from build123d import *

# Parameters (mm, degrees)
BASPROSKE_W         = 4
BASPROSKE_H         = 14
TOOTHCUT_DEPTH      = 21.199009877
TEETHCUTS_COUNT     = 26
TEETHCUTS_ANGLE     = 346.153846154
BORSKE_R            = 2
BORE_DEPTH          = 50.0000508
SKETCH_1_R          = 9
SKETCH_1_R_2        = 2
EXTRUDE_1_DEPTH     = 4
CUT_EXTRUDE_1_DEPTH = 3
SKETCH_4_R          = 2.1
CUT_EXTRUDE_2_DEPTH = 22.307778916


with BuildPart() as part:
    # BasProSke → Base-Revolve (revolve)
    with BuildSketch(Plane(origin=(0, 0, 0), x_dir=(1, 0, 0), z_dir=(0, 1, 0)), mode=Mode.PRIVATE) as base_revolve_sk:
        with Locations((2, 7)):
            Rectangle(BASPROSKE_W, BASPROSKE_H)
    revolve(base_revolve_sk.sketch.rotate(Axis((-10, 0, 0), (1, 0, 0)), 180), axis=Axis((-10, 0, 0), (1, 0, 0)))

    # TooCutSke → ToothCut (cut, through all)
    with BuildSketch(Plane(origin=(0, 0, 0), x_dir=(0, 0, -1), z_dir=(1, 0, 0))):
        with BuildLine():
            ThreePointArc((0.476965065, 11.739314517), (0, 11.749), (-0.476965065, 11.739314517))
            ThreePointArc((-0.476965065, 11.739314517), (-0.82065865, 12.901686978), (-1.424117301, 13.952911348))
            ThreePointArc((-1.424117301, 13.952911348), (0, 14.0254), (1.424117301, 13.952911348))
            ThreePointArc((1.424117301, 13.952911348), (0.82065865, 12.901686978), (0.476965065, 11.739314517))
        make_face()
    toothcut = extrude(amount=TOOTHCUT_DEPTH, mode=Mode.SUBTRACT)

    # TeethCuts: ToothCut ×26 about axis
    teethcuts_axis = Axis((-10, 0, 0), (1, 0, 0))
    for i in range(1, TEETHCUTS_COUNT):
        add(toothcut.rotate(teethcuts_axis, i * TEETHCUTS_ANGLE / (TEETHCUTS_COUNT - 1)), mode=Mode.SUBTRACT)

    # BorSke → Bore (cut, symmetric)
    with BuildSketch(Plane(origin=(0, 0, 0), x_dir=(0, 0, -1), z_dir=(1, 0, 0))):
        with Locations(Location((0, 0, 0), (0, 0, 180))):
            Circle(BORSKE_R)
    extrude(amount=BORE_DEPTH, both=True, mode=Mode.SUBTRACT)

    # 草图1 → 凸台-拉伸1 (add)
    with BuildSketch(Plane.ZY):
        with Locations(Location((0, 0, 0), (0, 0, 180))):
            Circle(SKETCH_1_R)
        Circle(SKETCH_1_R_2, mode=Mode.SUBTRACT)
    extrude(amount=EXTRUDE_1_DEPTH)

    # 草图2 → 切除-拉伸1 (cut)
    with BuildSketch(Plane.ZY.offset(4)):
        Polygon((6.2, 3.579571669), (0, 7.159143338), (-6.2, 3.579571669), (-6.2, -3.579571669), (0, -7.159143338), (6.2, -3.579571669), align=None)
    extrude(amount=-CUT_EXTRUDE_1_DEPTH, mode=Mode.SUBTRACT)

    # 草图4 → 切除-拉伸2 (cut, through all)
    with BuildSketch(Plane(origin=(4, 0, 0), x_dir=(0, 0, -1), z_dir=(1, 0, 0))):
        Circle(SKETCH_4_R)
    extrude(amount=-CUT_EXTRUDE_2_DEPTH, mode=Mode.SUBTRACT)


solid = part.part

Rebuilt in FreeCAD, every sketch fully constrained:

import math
import FreeCAD as App
import Part
import Sketcher

V = App.Vector
Q = App.Units.Quantity


def add_polygon(sketch, points):
    """Adds a closed chain of lines whose ends are joined by coincident constraints."""
    first, n = sketch.GeometryCount, len(points)
    for a, b in zip(points, points[1:] + points[:1]):
        sketch.addGeometry(Part.LineSegment(App.Vector(*a, 0), App.Vector(*b, 0)), False)
    for i in range(n):
        sketch.addConstraint(Sketcher.Constraint("Coincident", first + i, 2, first + (i + 1) % n, 1))

doc = App.newDocument("Part")
body = doc.addObject("PartDesign::Body", "Body")

# Sketch on XZ plane
sketch1 = doc.addObject("Sketcher::SketchObject", "Sketch")
body.addObject(sketch1)
sketch1.AttachmentSupport = (doc.XZ_Plane, [""])
sketch1.MapMode = "FlatFace"
add_polygon(sketch1, [(0, -14), (0, 0), (4, 0), (4, -14)])  # lines 0-3
sketch1.addConstraint(Sketcher.Constraint("Vertical", 0))
sketch1.addConstraint(Sketcher.Constraint("Horizontal", 1))
sketch1.addConstraint(Sketcher.Constraint("Vertical", 2))
sketch1.addConstraint(Sketcher.Constraint("Horizontal", 3))
sketch1.addConstraint(Sketcher.Constraint("Coincident", 0, 2, -1, 1))
sketch1.addConstraint(Sketcher.Constraint("DistanceX", 1, 1, 1, 2, Q("4 mm")))
sketch1.addConstraint(Sketcher.Constraint("DistanceY", 0, 1, 0, 2, Q("14 mm")))
revolution = doc.addObject("PartDesign::Revolution", "Revolution")
body.addObject(revolution)
revolution.Profile = sketch1
revolution.ReferenceAxis = (sketch1, ["H_Axis"])
revolution.Angle = 360

# Sketch on YZ plane
sketch2 = doc.addObject("Sketcher::SketchObject", "Sketch001")
body.addObject(sketch2)
sketch2.AttachmentSupport = (doc.YZ_Plane, [""])
sketch2.MapMode = "FlatFace"
sketch2.addGeometry(Part.ArcOfCircle(Part.Circle(V(0, 0, 0), V(0, 0, 1), 11.7), math.radians(-2.33), math.radians(2.33)), False)
sketch2.addGeometry(Part.ArcOfCircle(Part.Circle(V(10.9, -5.6, 0), V(0, 0, 1), 5.2), math.radians(53), math.radians(80)), False)
sketch2.addGeometry(Part.ArcOfCircle(Part.Circle(V(0, 0, 0), V(0, 0, 1), 14), math.radians(-5.83), math.radians(5.83)), False)
sketch2.addGeometry(Part.ArcOfCircle(Part.Circle(V(10.9, 5.6, 0), V(0, 0, 1), 5.2), math.radians(-80), math.radians(-53)), False)
sketch2.addConstraint(Sketcher.Constraint("Coincident", 0, 1, 1, 2))
sketch2.addConstraint(Sketcher.Constraint("Coincident", 1, 1, 2, 1))
sketch2.addConstraint(Sketcher.Constraint("Coincident", 2, 2, 3, 2))
sketch2.addConstraint(Sketcher.Constraint("Coincident", 3, 1, 0, 2))
sketch2.addConstraint(Sketcher.Constraint("Coincident", 0, 3, -1, 1))
sketch2.addConstraint(Sketcher.Constraint("Coincident", 2, 3, -1, 1))
sketch2.addConstraint(Sketcher.Constraint("Equal", 1, 3))
sketch2.addConstraint(Sketcher.Constraint("Symmetric", 1, 3, 3, 3, -1))
sketch2.addConstraint(Sketcher.Constraint("Radius", 1, Q("5.2 mm")))
sketch2.addConstraint(Sketcher.Constraint("Radius", 0, Q("11.749 mm")))
sketch2.addConstraint(Sketcher.Constraint("Radius", 2, Q("14.0254 mm")))
sketch2.addConstraint(Sketcher.Constraint("DistanceY", 1, 3, -1, 1, Q("5.60141 mm")))
sketch2.addConstraint(Sketcher.Constraint("DistanceX", -1, 1, 1, 1, Q("13.952911 mm")))
pocket1 = doc.addObject("PartDesign::Pocket", "Pocket")
body.addObject(pocket1)
pocket1.Profile = sketch2
pocket1.Type = "ThroughAll"
pocket1.Reversed = True
doc.recompute()

polarpattern = doc.addObject("PartDesign::PolarPattern", "PolarPattern")
body.addObject(polarpattern)
polarpattern.Originals = [pocket1]
polarpattern.Axis = (doc.X_Axis, [""])
polarpattern.Angle = 360
polarpattern.Occurrences = 26
body.Tip = polarpattern

# Sketch on YZ plane
sketch3 = doc.addObject("Sketcher::SketchObject", "Sketch002")
body.addObject(sketch3)
sketch3.AttachmentSupport = (doc.YZ_Plane, [""])
sketch3.MapMode = "FlatFace"
sketch3.addGeometry(Part.Circle(V(0, 0, 0), V(0, 0, 1), 2), False)
sketch3.addConstraint(Sketcher.Constraint("Coincident", 0, 3, -1, 1))
sketch3.addConstraint(Sketcher.Constraint("Diameter", 0, Q("4 mm")))
pocket2 = doc.addObject("PartDesign::Pocket", "Pocket001")
body.addObject(pocket2)
pocket2.Profile = sketch3
pocket2.Length = 100.000102
pocket2.Midplane = True

# Sketch on YZ plane
sketch4 = doc.addObject("Sketcher::SketchObject", "Sketch003")
body.addObject(sketch4)
sketch4.AttachmentSupport = (doc.YZ_Plane, [""])
sketch4.MapMode = "FlatFace"
sketch4.addGeometry(Part.Circle(V(0, 0, 0), V(0, 0, 1), 9), False)
sketch4.addGeometry(Part.Circle(V(0, 0, 0), V(0, 0, 1), 2), False)
sketch4.addConstraint(Sketcher.Constraint("Coincident", 0, 3, -1, 1))
sketch4.addConstraint(Sketcher.Constraint("Coincident", 1, 3, -1, 1))
sketch4.addConstraint(Sketcher.Constraint("Diameter", 0, Q("18 mm")))
sketch4.addConstraint(Sketcher.Constraint("Diameter", 1, Q("4 mm")))
pad1 = doc.addObject("PartDesign::Pad", "Pad")
body.addObject(pad1)
pad1.Profile = sketch4
pad1.Length = 4
pad1.Reversed = True

# Sketch on YZ plane
sketch5 = doc.addObject("Sketcher::SketchObject", "Sketch004")
body.addObject(sketch5)
sketch5.AttachmentSupport = (doc.YZ_Plane, [""])
sketch5.MapMode = "FlatFace"
sketch5.AttachmentOffset = App.Placement(V(0, 0, -4), App.Rotation())
add_polygon(sketch5, [(4, 6), (7, 0), (4, -6), (-4, -6), (-7, 0), (-4, 6)])  # lines 0-5
sketch5.addConstraint(Sketcher.Constraint("Horizontal", 2))
sketch5.addConstraint(Sketcher.Constraint("Horizontal", 5))
sketch5.addConstraint(Sketcher.Constraint("Symmetric", 0, 2, 3, 2, -1, 1))
sketch5.addConstraint(Sketcher.Constraint("Symmetric", 1, 2, 4, 2, -1, 1))
sketch5.addConstraint(Sketcher.Constraint("PointOnObject", 0, 2, -1))
sketch5.addConstraint(Sketcher.Constraint("Parallel", 0, 3))
sketch5.addConstraint(Sketcher.Constraint("Vertical", 2, 2, 4, 2))
sketch5.addConstraint(Sketcher.Constraint("Angle", 0, Q("-60 deg")))
sketch5.addConstraint(Sketcher.Constraint("DistanceY", 1, 2, -1, 1, Q("6.2 mm")))
sketch5.addConstraint(Sketcher.Constraint("DistanceX", 2, 2, 2, 1, Q("7.159143 mm")))
pocket3 = doc.addObject("PartDesign::Pocket", "Pocket002")
body.addObject(pocket3)
pocket3.Profile = sketch5
pocket3.Length = 3
pocket3.Reversed = True

# Sketch on YZ plane
sketch6 = doc.addObject("Sketcher::SketchObject", "Sketch005")
body.addObject(sketch6)
sketch6.AttachmentSupport = (doc.YZ_Plane, [""])
sketch6.MapMode = "FlatFace"
sketch6.AttachmentOffset = App.Placement(V(0, 0, 4), App.Rotation())
sketch6.addGeometry(Part.Circle(V(0, 0, 0), V(0, 0, 1), 2.1), False)
sketch6.addConstraint(Sketcher.Constraint("Coincident", 0, 3, -1, 1))
sketch6.addConstraint(Sketcher.Constraint("Diameter", 0, Q("4.2 mm")))
pocket4 = doc.addObject("PartDesign::Pocket", "Pocket003")
body.addObject(pocket4)
pocket4.Profile = sketch6
pocket4.Type = "ThroughAll"

doc.recompute()
